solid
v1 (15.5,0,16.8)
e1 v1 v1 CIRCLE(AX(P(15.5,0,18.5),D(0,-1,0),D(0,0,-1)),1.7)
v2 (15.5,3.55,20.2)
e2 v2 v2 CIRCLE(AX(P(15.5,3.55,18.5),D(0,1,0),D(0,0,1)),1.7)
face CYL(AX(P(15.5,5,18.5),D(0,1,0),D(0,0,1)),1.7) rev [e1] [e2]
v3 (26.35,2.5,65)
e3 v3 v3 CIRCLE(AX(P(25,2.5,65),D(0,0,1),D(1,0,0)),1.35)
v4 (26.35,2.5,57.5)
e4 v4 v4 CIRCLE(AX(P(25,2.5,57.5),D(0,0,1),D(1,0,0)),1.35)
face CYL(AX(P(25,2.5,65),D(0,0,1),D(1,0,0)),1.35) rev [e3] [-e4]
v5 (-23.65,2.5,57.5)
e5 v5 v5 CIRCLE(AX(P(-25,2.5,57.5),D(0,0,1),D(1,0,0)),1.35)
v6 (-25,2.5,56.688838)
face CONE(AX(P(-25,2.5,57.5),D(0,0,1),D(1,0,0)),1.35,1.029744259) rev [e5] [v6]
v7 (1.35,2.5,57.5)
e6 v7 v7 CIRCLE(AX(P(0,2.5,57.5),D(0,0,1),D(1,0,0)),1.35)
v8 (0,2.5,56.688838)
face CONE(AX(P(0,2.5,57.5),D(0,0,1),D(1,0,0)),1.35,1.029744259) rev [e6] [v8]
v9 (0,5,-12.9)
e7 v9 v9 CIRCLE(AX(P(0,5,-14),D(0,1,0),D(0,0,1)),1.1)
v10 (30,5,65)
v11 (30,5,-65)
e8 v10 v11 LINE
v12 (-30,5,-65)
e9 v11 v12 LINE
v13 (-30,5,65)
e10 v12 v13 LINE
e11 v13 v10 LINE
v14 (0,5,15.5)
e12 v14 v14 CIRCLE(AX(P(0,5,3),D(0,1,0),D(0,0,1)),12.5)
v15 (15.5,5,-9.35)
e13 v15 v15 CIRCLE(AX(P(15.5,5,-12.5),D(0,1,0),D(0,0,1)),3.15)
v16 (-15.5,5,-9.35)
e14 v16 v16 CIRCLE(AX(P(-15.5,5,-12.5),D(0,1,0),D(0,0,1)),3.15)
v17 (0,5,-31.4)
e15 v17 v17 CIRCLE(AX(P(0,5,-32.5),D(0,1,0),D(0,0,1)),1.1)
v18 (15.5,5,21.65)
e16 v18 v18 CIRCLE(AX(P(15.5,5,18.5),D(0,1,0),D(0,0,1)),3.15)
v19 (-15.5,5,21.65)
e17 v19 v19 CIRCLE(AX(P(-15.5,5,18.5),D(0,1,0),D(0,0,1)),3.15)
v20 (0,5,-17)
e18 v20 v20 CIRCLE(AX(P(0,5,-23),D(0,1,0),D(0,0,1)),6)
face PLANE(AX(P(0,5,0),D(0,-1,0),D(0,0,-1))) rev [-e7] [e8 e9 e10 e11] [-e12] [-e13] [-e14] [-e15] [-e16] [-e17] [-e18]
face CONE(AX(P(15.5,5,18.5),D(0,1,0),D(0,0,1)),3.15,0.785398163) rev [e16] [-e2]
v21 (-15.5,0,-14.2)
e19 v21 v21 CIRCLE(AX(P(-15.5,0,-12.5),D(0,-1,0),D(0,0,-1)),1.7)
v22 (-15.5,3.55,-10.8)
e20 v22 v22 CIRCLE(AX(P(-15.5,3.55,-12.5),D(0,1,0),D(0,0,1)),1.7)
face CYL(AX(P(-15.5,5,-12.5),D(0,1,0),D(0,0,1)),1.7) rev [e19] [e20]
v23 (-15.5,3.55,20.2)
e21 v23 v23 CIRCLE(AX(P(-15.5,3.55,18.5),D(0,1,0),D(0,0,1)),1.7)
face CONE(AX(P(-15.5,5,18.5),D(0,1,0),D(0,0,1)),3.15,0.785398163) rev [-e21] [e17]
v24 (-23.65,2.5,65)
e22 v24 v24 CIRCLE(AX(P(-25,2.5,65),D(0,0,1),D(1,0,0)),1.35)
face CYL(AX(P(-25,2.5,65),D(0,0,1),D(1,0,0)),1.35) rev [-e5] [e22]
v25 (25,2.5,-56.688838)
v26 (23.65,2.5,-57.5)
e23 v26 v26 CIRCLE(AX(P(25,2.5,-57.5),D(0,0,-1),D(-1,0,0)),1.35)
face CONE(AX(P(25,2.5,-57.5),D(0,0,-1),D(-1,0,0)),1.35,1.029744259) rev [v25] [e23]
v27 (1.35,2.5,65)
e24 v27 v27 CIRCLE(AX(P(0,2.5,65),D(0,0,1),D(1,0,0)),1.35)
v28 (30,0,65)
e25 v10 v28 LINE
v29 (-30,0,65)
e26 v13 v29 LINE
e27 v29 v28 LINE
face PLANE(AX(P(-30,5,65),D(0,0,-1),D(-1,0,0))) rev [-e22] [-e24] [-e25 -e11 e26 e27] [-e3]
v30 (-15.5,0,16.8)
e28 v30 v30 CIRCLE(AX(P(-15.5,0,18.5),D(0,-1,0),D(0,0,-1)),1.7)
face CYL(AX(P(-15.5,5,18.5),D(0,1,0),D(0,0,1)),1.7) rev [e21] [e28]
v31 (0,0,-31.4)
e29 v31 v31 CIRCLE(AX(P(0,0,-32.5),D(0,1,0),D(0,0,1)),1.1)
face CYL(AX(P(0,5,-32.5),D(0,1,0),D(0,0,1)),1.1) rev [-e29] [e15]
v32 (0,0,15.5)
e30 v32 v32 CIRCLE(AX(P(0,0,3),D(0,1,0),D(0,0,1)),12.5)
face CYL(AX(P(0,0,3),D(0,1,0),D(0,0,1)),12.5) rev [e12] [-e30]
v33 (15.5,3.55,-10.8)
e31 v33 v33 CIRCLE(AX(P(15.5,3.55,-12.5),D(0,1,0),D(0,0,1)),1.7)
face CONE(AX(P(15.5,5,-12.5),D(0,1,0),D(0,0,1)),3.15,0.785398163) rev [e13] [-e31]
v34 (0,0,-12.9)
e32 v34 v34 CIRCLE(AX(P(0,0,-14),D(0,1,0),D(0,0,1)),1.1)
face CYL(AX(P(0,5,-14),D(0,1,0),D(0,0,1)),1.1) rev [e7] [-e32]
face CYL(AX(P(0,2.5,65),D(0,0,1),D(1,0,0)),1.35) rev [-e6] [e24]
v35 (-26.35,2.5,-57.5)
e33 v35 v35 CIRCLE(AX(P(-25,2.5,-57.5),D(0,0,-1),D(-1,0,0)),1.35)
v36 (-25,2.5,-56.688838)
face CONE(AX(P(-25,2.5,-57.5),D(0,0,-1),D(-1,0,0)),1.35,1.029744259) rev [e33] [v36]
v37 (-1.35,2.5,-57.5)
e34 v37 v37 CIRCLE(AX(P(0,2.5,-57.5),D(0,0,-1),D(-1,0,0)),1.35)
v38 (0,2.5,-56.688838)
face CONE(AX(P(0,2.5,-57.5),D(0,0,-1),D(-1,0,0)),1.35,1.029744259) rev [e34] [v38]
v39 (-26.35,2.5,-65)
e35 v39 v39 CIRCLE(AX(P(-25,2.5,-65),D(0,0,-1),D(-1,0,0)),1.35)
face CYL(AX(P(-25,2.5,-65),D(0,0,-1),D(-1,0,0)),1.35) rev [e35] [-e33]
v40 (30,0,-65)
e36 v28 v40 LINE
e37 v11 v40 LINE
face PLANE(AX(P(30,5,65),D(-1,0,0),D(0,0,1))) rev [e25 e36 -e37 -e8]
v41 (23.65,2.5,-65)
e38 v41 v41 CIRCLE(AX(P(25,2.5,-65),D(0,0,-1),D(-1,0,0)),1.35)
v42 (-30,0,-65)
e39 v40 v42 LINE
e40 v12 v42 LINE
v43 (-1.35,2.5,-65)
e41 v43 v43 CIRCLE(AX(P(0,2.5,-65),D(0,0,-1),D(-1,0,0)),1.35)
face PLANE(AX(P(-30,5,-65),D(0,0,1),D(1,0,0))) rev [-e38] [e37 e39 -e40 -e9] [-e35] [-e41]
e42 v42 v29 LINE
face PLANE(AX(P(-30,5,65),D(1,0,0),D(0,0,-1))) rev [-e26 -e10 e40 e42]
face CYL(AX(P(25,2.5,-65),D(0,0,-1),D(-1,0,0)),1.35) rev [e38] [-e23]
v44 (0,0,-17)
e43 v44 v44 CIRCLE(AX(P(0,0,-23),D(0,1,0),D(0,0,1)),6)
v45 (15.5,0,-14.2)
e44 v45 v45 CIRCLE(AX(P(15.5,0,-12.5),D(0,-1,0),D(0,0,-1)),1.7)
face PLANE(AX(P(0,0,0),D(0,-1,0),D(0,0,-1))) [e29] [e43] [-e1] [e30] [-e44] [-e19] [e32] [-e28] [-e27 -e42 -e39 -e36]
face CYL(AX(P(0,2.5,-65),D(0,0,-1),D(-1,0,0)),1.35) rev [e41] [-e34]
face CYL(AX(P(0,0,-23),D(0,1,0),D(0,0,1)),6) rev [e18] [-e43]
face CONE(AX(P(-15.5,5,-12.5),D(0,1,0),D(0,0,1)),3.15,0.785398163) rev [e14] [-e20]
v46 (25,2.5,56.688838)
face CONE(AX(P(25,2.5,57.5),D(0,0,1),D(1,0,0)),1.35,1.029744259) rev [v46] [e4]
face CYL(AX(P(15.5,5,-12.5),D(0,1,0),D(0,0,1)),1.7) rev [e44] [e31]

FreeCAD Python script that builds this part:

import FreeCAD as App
import Part
import Sketcher
from FreeCAD import Vector
Q = App.Units.Quantity

doc = App.newDocument("Part")
body = doc.addObject("PartDesign::Body", "Body")

# Sketch on XZ plane
sketch1 = doc.addObject("Sketcher::SketchObject", "Sketch")
body.addObject(sketch1)
sketch1.AttachmentSupport = (doc.XZ_Plane, [""])
sketch1.MapMode = "FlatFace"
sketch1.addGeometry([
    Part.LineSegment(Vector(-30, -65, 0), Vector(-30, 65, 0)),
    Part.LineSegment(Vector(-30, 65, 0), Vector(30, 65, 0)),
    Part.LineSegment(Vector(30, 65, 0), Vector(30, -65, 0)),
    Part.LineSegment(Vector(30, -65, 0), Vector(-30, -65, 0)),
], False)
sketch1.addConstraint([
    Sketcher.Constraint("Coincident", 0, 2, 1, 1),
    Sketcher.Constraint("Coincident", 1, 2, 2, 1),
    Sketcher.Constraint("Coincident", 2, 2, 3, 1),
    Sketcher.Constraint("Coincident", 3, 2, 0, 1),
    Sketcher.Constraint("Vertical", 0),
    Sketcher.Constraint("Horizontal", 1),
    Sketcher.Constraint("Vertical", 2),
    Sketcher.Constraint("Horizontal", 3),
    Sketcher.Constraint("Symmetric", 0, 2, 2, 2, -1, 1),
    Sketcher.Constraint("DistanceX", 1, 1, 1, 2, Q("60 mm")),
    Sketcher.Constraint("DistanceY", 0, 1, 0, 2, Q("130 mm")),
])
pad1 = doc.addObject("PartDesign::Pad", "Pad")
body.addObject(pad1)
pad1.Profile = sketch1
pad1.Length = 5
pad1.Reversed = True

# Sketch on XZ plane
sketch2 = doc.addObject("Sketcher::SketchObject", "Sketch001")
body.addObject(sketch2)
sketch2.AttachmentSupport = (doc.XZ_Plane, [""])
sketch2.MapMode = "FlatFace"
sketch2.AttachmentOffset = App.Placement(Vector(0, 0, -5), App.Rotation())
sketch2.addGeometry([
    Part.Circle(Vector(-15.5, -12.5, 0), Vector(0, 0, 1), 1.7),
    Part.Circle(Vector(-15.5, 18.5, 0), Vector(0, 0, 1), 1.7),
    Part.Circle(Vector(15.5, -12.5, 0), Vector(0, 0, 1), 1.7),
    Part.Circle(Vector(15.5, 18.5, 0), Vector(0, 0, 1), 1.7),
], False)
sketch2.addConstraint([
    Sketcher.Constraint("Equal", 0, 1),
    Sketcher.Constraint("Equal", 1, 2),
    Sketcher.Constraint("Equal", 2, 3),
    Sketcher.Constraint("Symmetric", 0, 3, 2, 3, -2),
    Sketcher.Constraint("Symmetric", 1, 3, 3, 3, -2),
    Sketcher.Constraint("Vertical", 0, 3, 1, 3),
    Sketcher.Constraint("Diameter", 0, Q("3.4 mm")),
    Sketcher.Constraint("DistanceY", 0, 3, 1, 3, Q("31 mm")),
    Sketcher.Constraint("DistanceX", 0, 3, 2, 3, Q("31 mm")),
    Sketcher.Constraint("DistanceY", 0, 3, -1, 1, Q("12.5 mm")),
])
doc.recompute()
hole = doc.addObject("PartDesign::Hole", "Hole")
body.addObject(hole)
hole.Profile = sketch2
hole.ThreadType = "None"
hole.Diameter = 3.4
hole.DepthType = "Dimension"
hole.Depth = 7.5
hole.DrillPoint = "Angled"
hole.DrillPointAngle = 118
hole.HoleCutType = "Countersink"
hole.HoleCutDiameter = 6.3
hole.HoleCutCountersinkAngle = 90
hole.Reversed = True

# Sketch on XZ plane
sketch3 = doc.addObject("Sketcher::SketchObject", "Sketch002")
body.addObject(sketch3)
sketch3.AttachmentSupport = (doc.XZ_Plane, [""])
sketch3.MapMode = "FlatFace"
sketch3.AttachmentOffset = App.Placement(Vector(0, 0, -5), App.Rotation())
sketch3.addGeometry(Part.Circle(Vector(0, 3, 0), Vector(0, 0, 1), 12), False)
sketch3.addConstraint([
    Sketcher.Constraint("PointOnObject", 0, 3, -2),
    Sketcher.Constraint("Diameter", 0, Q("25 mm")),
    Sketcher.Constraint("DistanceY", -1, 1, 0, 3, Q("3 mm")),
])
pocket1 = doc.addObject("PartDesign::Pocket", "Pocket")
body.addObject(pocket1)
pocket1.Profile = sketch3
pocket1.Type = "ThroughAll"
pocket1.Reversed = True

# Sketch on YZ plane
sketch4 = doc.addObject("Sketcher::SketchObject", "Sketch003")
body.addObject(sketch4)
sketch4.AttachmentSupport = (doc.YZ_Plane, [""])
sketch4.MapMode = "FlatFace"
sketch4.AttachmentOffset = App.Placement(Vector(0, 0, 25), App.Rotation())
sketch4.addGeometry([
    Part.LineSegment(Vector(2.5, -56.7, 0), Vector(2.5, -65, 0)),
    Part.LineSegment(Vector(2.5, -65, 0), Vector(3.9, -65, 0)),
    Part.LineSegment(Vector(3.9, -65, 0), Vector(3.9, -57.5, 0)),
    Part.LineSegment(Vector(3.9, -57.5, 0), Vector(2.5, -56.7, 0)),
], False)
sketch4.addGeometry(Part.LineSegment(Vector(2.5, -65, 0), Vector(2.5, -56.7, 0)), True)  # axis
sketch4.addConstraint([
    Sketcher.Constraint("Coincident", 0, 2, 1, 1),
    Sketcher.Constraint("Coincident", 1, 2, 2, 1),
    Sketcher.Constraint("Coincident", 2, 2, 3, 1),
    Sketcher.Constraint("Coincident", 3, 2, 0, 1),
    Sketcher.Constraint("Vertical", 0),
    Sketcher.Constraint("Horizontal", 1),
    Sketcher.Constraint("Vertical", 2),
    Sketcher.Constraint("Vertical", 4),
    Sketcher.Constraint("Coincident", 4, 1, 0, 2),
    Sketcher.Constraint("Equal", 0, 4),
    Sketcher.Constraint("Angle", 3, Q("149 deg")),
    Sketcher.Constraint("DistanceY", 2, 1, 2, 2, Q("7.5 mm")),
    Sketcher.Constraint("DistanceY", 0, 2, -1, 1, Q("65 mm")),
    Sketcher.Constraint("DistanceX", 1, 1, 1, 2, Q("1.35 mm")),
    Sketcher.Constraint("DistanceX", -1, 1, 0, 2, Q("2.5 mm")),
])
groove = doc.addObject("PartDesign::Groove", "Groove")
body.addObject(groove)
groove.Profile = sketch4
groove.ReferenceAxis = (sketch4, ["Axis0"])
groove.Angle = 360
doc.recompute()

linearpattern = doc.addObject("PartDesign::LinearPattern", "LinearPattern")
body.addObject(linearpattern)
linearpattern.Originals = [groove]
linearpattern.Direction = (doc.X_Axis, [""])
linearpattern.Mode = "offset"
linearpattern.Offset = 25
linearpattern.Occurrences = 2
linearpattern.Reversed = True
body.Tip = linearpattern
doc.recompute()

linearpattern2 = doc.addObject("PartDesign::LinearPattern", "LinearPattern001")
body.addObject(linearpattern2)
linearpattern2.Originals = [groove]
linearpattern2.Direction = (doc.X_Axis, [""])
linearpattern2.Mode = "offset"
linearpattern2.Offset = 50
linearpattern2.Occurrences = 2
linearpattern2.Reversed = True
body.Tip = linearpattern2
doc.recompute()

mirrored = doc.addObject("PartDesign::Mirrored", "Mirrored")
body.addObject(mirrored)
mirrored.Originals = [groove]
mirrored.MirrorPlane = (doc.XY_Plane, [""])
body.Tip = mirrored

# Sketch on YZ plane
sketch5 = doc.addObject("Sketcher::SketchObject", "Sketch004")
body.addObject(sketch5)
sketch5.AttachmentSupport = (doc.YZ_Plane, [""])
sketch5.MapMode = "FlatFace"
sketch5.addGeometry([
    Part.LineSegment(Vector(2.5, 65, 0), Vector(2.5, 56.7, 0)),
    Part.LineSegment(Vector(2.5, 56.7, 0), Vector(3.9, 57.5, 0)),
    Part.LineSegment(Vector(3.9, 57.5, 0), Vector(3.9, 65, 0)),
    Part.LineSegment(Vector(3.9, 65, 0), Vector(2.5, 65, 0)),
], False)
sketch5.addGeometry(Part.LineSegment(Vector(2.5, 56.7, 0), Vector(2.5, 65, 0)), True)  # axis
sketch5.addConstraint([
    Sketcher.Constraint("Coincident", 0, 2, 1, 1),
    Sketcher.Constraint("Coincident", 1, 2, 2, 1),
    Sketcher.Constraint("Coincident", 2, 2, 3, 1),
    Sketcher.Constraint("Coincident", 3, 2, 0, 1),
    Sketcher.Constraint("Vertical", 0),
    Sketcher.Constraint("Vertical", 2),
    Sketcher.Constraint("Horizontal", 3),
    Sketcher.Constraint("Vertical", 4),
    Sketcher.Constraint("Coincident", 4, 1, 0, 2),
    Sketcher.Constraint("Horizontal", 2, 2, 4, 2),
    Sketcher.Constraint("Angle", 1, Q("31 deg")),
    Sketcher.Constraint("DistanceY", 2, 1, 2, 2, Q("7.5 mm")),
    Sketcher.Constraint("DistanceY", -1, 1, 2, 2, Q("65 mm")),
    Sketcher.Constraint("DistanceX", 3, 2, 3, 1, Q("1.35 mm")),
    Sketcher.Constraint("DistanceX", -1, 1, 0, 2, Q("2.5 mm")),
])
groove2 = doc.addObject("PartDesign::Groove", "Groove001")
body.addObject(groove2)
groove2.Profile = sketch5
groove2.ReferenceAxis = (sketch5, ["Axis0"])
groove2.Angle = 360

# Sketch on YZ plane
sketch6 = doc.addObject("Sketcher::SketchObject", "Sketch005")
body.addObject(sketch6)
sketch6.AttachmentSupport = (doc.YZ_Plane, [""])
sketch6.MapMode = "FlatFace"
sketch6.AttachmentOffset = App.Placement(Vector(0, 0, -25), App.Rotation())
sketch6.addGeometry([
    Part.LineSegment(Vector(2.5, 65, 0), Vector(2.5, 56.7, 0)),
    Part.LineSegment(Vector(2.5, 56.7, 0), Vector(3.9, 57.5, 0)),
    Part.LineSegment(Vector(3.9, 57.5, 0), Vector(3.9, 65, 0)),
    Part.LineSegment(Vector(3.9, 65, 0), Vector(2.5, 65, 0)),
], False)
sketch6.addGeometry(Part.LineSegment(Vector(2.5, 56.7, 0), Vector(2.5, 65, 0)), True)  # axis
sketch6.addConstraint([
    Sketcher.Constraint("Coincident", 0, 2, 1, 1),
    Sketcher.Constraint("Coincident", 1, 2, 2, 1),
    Sketcher.Constraint("Coincident", 2, 2, 3, 1),
    Sketcher.Constraint("Coincident", 3, 2, 0, 1),
    Sketcher.Constraint("Vertical", 0),
    Sketcher.Constraint("Vertical", 2),
    Sketcher.Constraint("Horizontal", 3),
    Sketcher.Constraint("Vertical", 4),
    Sketcher.Constraint("Coincident", 4, 1, 0, 2),
    Sketcher.Constraint("Horizontal", 2, 2, 4, 2),
    Sketcher.Constraint("Angle", 1, Q("31 deg")),
    Sketcher.Constraint("DistanceY", 2, 1, 2, 2, Q("7.5 mm")),
    Sketcher.Constraint("DistanceY", -1, 1, 2, 2, Q("65 mm")),
    Sketcher.Constraint("DistanceX", 3, 2, 3, 1, Q("1.35 mm")),
    Sketcher.Constraint("DistanceX", -1, 1, 0, 2, Q("2.5 mm")),
])
groove3 = doc.addObject("PartDesign::Groove", "Groove002")
body.addObject(groove3)
groove3.Profile = sketch6
groove3.ReferenceAxis = (sketch6, ["Axis0"])
groove3.Angle = 360

# Sketch on XZ plane
sketch7 = doc.addObject("Sketcher::SketchObject", "Sketch006")
body.addObject(sketch7)
sketch7.AttachmentSupport = (doc.XZ_Plane, [""])
sketch7.MapMode = "FlatFace"
sketch7.AttachmentOffset = App.Placement(Vector(0, 0, -5), App.Rotation())
sketch7.addGeometry([
    Part.Circle(Vector(0, -32.5, 0), Vector(0, 0, 1), 1.1),
    Part.Circle(Vector(0, -14, 0), Vector(0, 0, 1), 1.1),
], False)
sketch7.addConstraint([
    Sketcher.Constraint("Equal", 0, 1),
    Sketcher.Constraint("PointOnObject", 0, 3, -2),
    Sketcher.Constraint("PointOnObject", 1, 3, -2),
    Sketcher.Constraint("Diameter", 0, Q("2.2 mm")),
    Sketcher.Constraint("DistanceY", 1, 3, -1, 1, Q("14 mm")),
    Sketcher.Constraint("DistanceY", 0, 3, -1, 1, Q("32.5 mm")),
])
doc.recompute()
hole2 = doc.addObject("PartDesign::Hole", "Hole001")
body.addObject(hole2)
hole2.Profile = sketch7
hole2.ThreadType = "None"
hole2.Diameter = 2.2
hole2.DepthType = "ThroughAll"
hole2.Reversed = True

# Sketch on XZ plane
sketch8 = doc.addObject("Sketcher::SketchObject", "Sketch007")
body.addObject(sketch8)
sketch8.AttachmentSupport = (doc.XZ_Plane, [""])
sketch8.MapMode = "FlatFace"
sketch8.AttachmentOffset = App.Placement(Vector(0, 0, -5), App.Rotation())
sketch8.addGeometry(Part.Circle(Vector(0, -23, 0), Vector(0, 0, 1), 6), False)
sketch8.addConstraint([
    Sketcher.Constraint("PointOnObject", 0, 3, -2),
    Sketcher.Constraint("Diameter", 0, Q("12 mm")),
    Sketcher.Constraint("DistanceY", 0, 3, -1, 1, Q("23 mm")),
])
pocket2 = doc.addObject("PartDesign::Pocket", "Pocket001")
body.addObject(pocket2)
pocket2.Profile = sketch8
pocket2.Type = "ThroughAll"
pocket2.Reversed = True

doc.recompute()
